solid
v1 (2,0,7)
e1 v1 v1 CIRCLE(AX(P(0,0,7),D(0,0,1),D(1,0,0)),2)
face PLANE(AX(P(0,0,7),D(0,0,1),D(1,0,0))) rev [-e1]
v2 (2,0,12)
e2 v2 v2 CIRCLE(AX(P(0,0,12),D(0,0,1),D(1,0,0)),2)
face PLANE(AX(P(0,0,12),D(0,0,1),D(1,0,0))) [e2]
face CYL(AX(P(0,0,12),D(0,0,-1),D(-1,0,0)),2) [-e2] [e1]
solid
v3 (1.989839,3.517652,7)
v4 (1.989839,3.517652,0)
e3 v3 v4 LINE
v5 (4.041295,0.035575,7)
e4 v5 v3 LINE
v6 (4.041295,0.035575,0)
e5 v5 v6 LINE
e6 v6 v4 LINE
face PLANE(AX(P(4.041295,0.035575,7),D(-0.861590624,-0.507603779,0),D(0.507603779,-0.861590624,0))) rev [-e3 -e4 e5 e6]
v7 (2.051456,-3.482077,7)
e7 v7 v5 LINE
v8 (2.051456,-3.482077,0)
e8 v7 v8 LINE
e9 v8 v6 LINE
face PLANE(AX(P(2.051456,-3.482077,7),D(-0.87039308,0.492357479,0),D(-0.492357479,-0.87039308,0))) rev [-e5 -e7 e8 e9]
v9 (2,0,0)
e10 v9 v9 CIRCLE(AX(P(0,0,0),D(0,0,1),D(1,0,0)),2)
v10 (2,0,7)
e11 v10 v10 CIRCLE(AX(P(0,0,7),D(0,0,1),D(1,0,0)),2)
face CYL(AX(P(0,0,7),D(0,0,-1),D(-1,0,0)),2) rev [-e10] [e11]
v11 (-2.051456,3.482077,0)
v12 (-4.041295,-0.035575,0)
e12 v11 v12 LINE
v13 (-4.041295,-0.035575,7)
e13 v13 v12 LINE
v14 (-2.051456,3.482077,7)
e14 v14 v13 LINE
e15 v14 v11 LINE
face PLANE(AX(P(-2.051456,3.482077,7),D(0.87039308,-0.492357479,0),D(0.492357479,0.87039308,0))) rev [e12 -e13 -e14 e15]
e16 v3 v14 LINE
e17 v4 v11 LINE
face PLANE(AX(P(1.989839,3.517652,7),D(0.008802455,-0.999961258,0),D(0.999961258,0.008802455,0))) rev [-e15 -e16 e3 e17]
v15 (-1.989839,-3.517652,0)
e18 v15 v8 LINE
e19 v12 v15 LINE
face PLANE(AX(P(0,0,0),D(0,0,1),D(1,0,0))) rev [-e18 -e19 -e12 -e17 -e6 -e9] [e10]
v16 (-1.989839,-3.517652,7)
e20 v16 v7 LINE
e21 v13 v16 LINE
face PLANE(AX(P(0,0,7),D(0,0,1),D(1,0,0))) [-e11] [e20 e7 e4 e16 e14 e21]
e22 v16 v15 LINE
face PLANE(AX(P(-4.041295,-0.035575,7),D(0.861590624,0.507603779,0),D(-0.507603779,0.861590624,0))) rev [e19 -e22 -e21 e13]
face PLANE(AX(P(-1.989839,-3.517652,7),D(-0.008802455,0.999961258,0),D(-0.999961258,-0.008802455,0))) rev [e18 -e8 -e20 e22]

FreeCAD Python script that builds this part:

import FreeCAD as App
import Part
import Sketcher
from FreeCAD import Vector
Q = App.Units.Quantity


def add_polygon(sketch, points):
    """Adds a closed chain of lines whose ends are joined by coincident constraints."""
    first, n = sketch.GeometryCount, len(points)
    for a, b in zip(points, points[1:] + points[:1]):
        sketch.addGeometry(Part.LineSegment(App.Vector(*a, 0), App.Vector(*b, 0)), False)
    for i in range(n):
        sketch.addConstraint(Sketcher.Constraint("Coincident", first + i, 2, first + (i + 1) % n, 1))

doc = App.newDocument("Part")
body = doc.addObject("PartDesign::Body", "Body")

sketch1 = body.newObject("Sketcher::SketchObject", "Sketch")
sketch1.AttachmentSupport = (doc.getObject("XY_Plane"), [""])
sketch1.MapMode = "FlatFace"
add_polygon(sketch1, [(2.051456, -3.482077), (4.041295, 0.035575), (1.989839, 3.517652), (-2.051456, 3.482077), (-4.041295, -0.035575), (-1.989839, -3.517652)])
sketch1.addGeometry(Part.Circle(Vector(0, 0, 0), Vector(0, 0, 1), 2), False)
sketch1.addConstraint(Sketcher.Constraint("Coincident", 6, 3, -1, 1))
sketch1.addConstraint(Sketcher.Constraint("Symmetric", 0, 2, 3, 2, -1, 1))
sketch1.addConstraint(Sketcher.Constraint("Symmetric", 1, 2, 4, 2, -1, 1))
sketch1.addConstraint(Sketcher.Constraint("Symmetric", 2, 2, 5, 2, -1, 1))
sketch1.addConstraint(Sketcher.Constraint("Equal", 0, 1))
sketch1.addConstraint(Sketcher.Constraint("Equal", 1, 2))
sketch1.addConstraint(Sketcher.Constraint("Diameter", 6, Q("4 mm")))
sketch1.addConstraint(Sketcher.Constraint("Distance", 0, Q("4.041452 mm")))
sketch1.addConstraint(Sketcher.Constraint("DistanceX", -1, 1, 1, 2, Q("1.989839 mm")))
sketch1.addConstraint(Sketcher.Constraint("DistanceY", -1, 1, 1, 2, Q("3.517652 mm")))
sketch1.addConstraint(Sketcher.Constraint("DistanceX", 2, 2, 0, 2, Q("6.092752 mm")))
pad1 = body.newObject("PartDesign::Pad", "Pad")
pad1.Profile = sketch1
pad1.Length = 7
body2 = doc.addObject("PartDesign::Body", "Body001")

sketch2 = body2.newObject("Sketcher::SketchObject", "Sketch001")
sketch2.AttachmentSupport = (doc.getObject("XY_Plane001"), [""])
sketch2.MapMode = "FlatFace"
sketch2.AttachmentOffset = App.Placement(Vector(0, 0, 7), App.Rotation())
sketch2.addGeometry(Part.Circle(Vector(0, 0, 0), Vector(0, 0, 1), 2), False)
sketch2.addConstraint(Sketcher.Constraint("Coincident", 0, 3, -1, 1))
sketch2.addConstraint(Sketcher.Constraint("Diameter", 0, Q("4 mm")))
pad2 = body2.newObject("PartDesign::Pad", "Pad001")
pad2.Profile = sketch2
pad2.Length = 5

doc.recompute()
